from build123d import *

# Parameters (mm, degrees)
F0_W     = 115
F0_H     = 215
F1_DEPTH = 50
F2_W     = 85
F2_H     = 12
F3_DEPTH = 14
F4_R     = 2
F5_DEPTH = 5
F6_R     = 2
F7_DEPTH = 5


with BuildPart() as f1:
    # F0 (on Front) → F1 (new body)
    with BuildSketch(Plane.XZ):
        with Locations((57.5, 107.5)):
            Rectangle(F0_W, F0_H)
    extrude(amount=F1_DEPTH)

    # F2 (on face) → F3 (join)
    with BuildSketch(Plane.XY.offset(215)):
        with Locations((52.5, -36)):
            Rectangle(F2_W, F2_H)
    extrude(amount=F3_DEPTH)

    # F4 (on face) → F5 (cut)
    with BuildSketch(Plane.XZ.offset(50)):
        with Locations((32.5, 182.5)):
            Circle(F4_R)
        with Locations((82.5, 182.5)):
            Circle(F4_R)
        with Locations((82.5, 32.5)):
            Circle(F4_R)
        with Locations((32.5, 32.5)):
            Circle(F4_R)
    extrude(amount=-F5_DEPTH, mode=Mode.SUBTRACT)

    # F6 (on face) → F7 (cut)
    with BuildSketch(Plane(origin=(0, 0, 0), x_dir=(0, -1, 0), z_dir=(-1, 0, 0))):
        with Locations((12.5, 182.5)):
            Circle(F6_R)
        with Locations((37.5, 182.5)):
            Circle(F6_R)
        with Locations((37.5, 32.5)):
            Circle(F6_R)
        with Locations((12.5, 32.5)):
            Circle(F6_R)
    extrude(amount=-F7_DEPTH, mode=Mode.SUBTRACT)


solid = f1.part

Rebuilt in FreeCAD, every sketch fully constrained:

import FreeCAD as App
import Part
import Sketcher


def add_polygon(sketch, points):
    """Adds a closed chain of lines whose ends are joined by coincident constraints."""
    first, n = sketch.GeometryCount, len(points)
    for a, b in zip(points, points[1:] + points[:1]):
        sketch.addGeometry(Part.LineSegment(App.Vector(*a, 0), App.Vector(*b, 0)), False)
    for i in range(n):
        sketch.addConstraint(Sketcher.Constraint("Coincident", first + i, 2, first + (i + 1) % n, 1))

doc = App.newDocument("Part")
params = doc.addObject("Spreadsheet::Sheet", "Params")
for row, (alias, value) in enumerate([
    ("sketch1_width", "115 mm"),
    ("sketch1_height", "215 mm"),
    ("pad1_length", "50 mm"),
    ("sketch2_width", "85 mm"),
    ("sketch2_height", "12 mm"),
    ("pad2_length", "14 mm"),
    ("sketch3_diameter", "4 mm"),
    ("pocket1_length", "5 mm"),
    ("sketch4_diameter", "4 mm"),
    ("pocket2_length", "5 mm"),
], start=1):
    params.set(f"A{row}", alias)
    params.set(f"B{row}", "=" + value)
    params.setAlias(f"B{row}", alias)

body = doc.addObject("PartDesign::Body", "Body")

# Sketch on XZ plane
sketch1 = body.newObject("Sketcher::SketchObject", "Sketch")
sketch1.AttachmentSupport = (doc.getObject("XZ_Plane"), [""])
sketch1.MapMode = "FlatFace"
add_polygon(sketch1, [(0, 215), (0, 0), (115, 0), (115, 215)])  # lines 0-3
sketch1.addConstraint([
    Sketcher.Constraint("Vertical", 0),
    Sketcher.Constraint("Horizontal", 1),
    Sketcher.Constraint("Vertical", 2),
    Sketcher.Constraint("Horizontal", 3),
    Sketcher.Constraint("Coincident", 0, 2, -1, 1),
    Sketcher.Constraint("DistanceX", 1, 1, 1, 2, 115.0),
    Sketcher.Constraint("DistanceY", 0, 2, 0, 1, 215.0),
])
sketch1.setExpression("Constraints[9]", "Params.sketch1_width")
sketch1.setExpression("Constraints[10]", "Params.sketch1_height")
pad1 = body.newObject("PartDesign::Pad", "Pad")
pad1.Profile = sketch1
pad1.setExpression("Length", "Params.pad1_length")

# Sketch on XY plane
sketch2 = body.newObject("Sketcher::SketchObject", "Sketch001")
sketch2.AttachmentSupport = (doc.getObject("XY_Plane"), [""])
sketch2.MapMode = "FlatFace"
sketch2.AttachmentOffset = App.Placement(App.Vector(0, 0, 215), App.Rotation())
add_polygon(sketch2, [(10, -30), (10, -42), (95, -42), (95, -30)])  # lines 0-3
sketch2.addConstraint([
    Sketcher.Constraint("Vertical", 0),
    Sketcher.Constraint("Horizontal", 1),
    Sketcher.Constraint("Vertical", 2),
    Sketcher.Constraint("Horizontal", 3),
    Sketcher.Constraint("DistanceX", 1, 1, 1, 2, 85.0),
    Sketcher.Constraint("DistanceY", 0, 2, 0, 1, 12.0),
    Sketcher.Constraint("DistanceX", -1, 1, 0, 2, 10.0),
    Sketcher.Constraint("DistanceY", 0, 2, -1, 1, 42.0),
])
sketch2.setExpression("Constraints[8]", "Params.sketch2_width")
sketch2.setExpression("Constraints[9]", "Params.sketch2_height")
pad2 = body.newObject("PartDesign::Pad", "Pad001")
pad2.Profile = sketch2
pad2.setExpression("Length", "Params.pad2_length")

# Sketch on XZ plane
sketch3 = body.newObject("Sketcher::SketchObject", "Sketch002")
sketch3.AttachmentSupport = (doc.getObject("XZ_Plane"), [""])
sketch3.MapMode = "FlatFace"
sketch3.AttachmentOffset = App.Placement(App.Vector(0, 0, 50), App.Rotation())
sketch3.addGeometry([
    Part.Circle(App.Vector(32.5, 182.5, 0), App.Vector(0, 0, 1), 2),
    Part.Circle(App.Vector(82.5, 182.5, 0), App.Vector(0, 0, 1), 2),
    Part.Circle(App.Vector(82.5, 32.5, 0), App.Vector(0, 0, 1), 2),
    Part.Circle(App.Vector(32.5, 32.5, 0), App.Vector(0, 0, 1), 2),
], False)
sketch3.addConstraint([
    Sketcher.Constraint("Equal", 0, 1),
    Sketcher.Constraint("Equal", 1, 2),
    Sketcher.Constraint("Equal", 2, 3),
    Sketcher.Constraint("Horizontal", 0, 3, 1, 3),
    Sketcher.Constraint("Horizontal", 2, 3, 3, 3),
    Sketcher.Constraint("Vertical", 1, 3, 2, 3),
    Sketcher.Constraint("Vertical", 0, 3, 3, 3),
    Sketcher.Constraint("Diameter", 0, 4.0),
    Sketcher.Constraint("DistanceX", 0, 3, 1, 3, 50.0),
    Sketcher.Constraint("DistanceY", 2, 3, 1, 3, 150.0),
    Sketcher.Constraint("DistanceX", -1, 1, 0, 3, 32.5),
    Sketcher.Constraint("DistanceY", -1, 1, 0, 3, 182.5),
])
sketch3.setExpression("Constraints[7]", "Params.sketch3_diameter")
pocket1 = body.newObject("PartDesign::Pocket", "Pocket")
pocket1.Profile = sketch3
pocket1.setExpression("Length", "Params.pocket1_length")

# Sketch on YZ plane
sketch4 = body.newObject("Sketcher::SketchObject", "Sketch003")
sketch4.AttachmentSupport = (doc.getObject("YZ_Plane"), [""])
sketch4.MapMode = "FlatFace"
sketch4.addGeometry([
    Part.Circle(App.Vector(-12.5, 182.5, 0), App.Vector(0, 0, 1), 2),
    Part.Circle(App.Vector(-37.5, 182.5, 0), App.Vector(0, 0, 1), 2),
    Part.Circle(App.Vector(-37.5, 32.5, 0), App.Vector(0, 0, 1), 2),
    Part.Circle(App.Vector(-12.5, 32.5, 0), App.Vector(0, 0, 1), 2),
], False)
sketch4.addConstraint([
    Sketcher.Constraint("Equal", 0, 1),
    Sketcher.Constraint("Equal", 1, 2),
    Sketcher.Constraint("Equal", 2, 3),
    Sketcher.Constraint("Horizontal", 0, 3, 1, 3),
    Sketcher.Constraint("Horizontal", 2, 3, 3, 3),
    Sketcher.Constraint("Vertical", 1, 3, 2, 3),
    Sketcher.Constraint("Vertical", 0, 3, 3, 3),
    Sketcher.Constraint("Diameter", 0, 4.0),
    Sketcher.Constraint("DistanceX", 1, 3, 0, 3, 25.0),
    Sketcher.Constraint("DistanceY", 2, 3, 1, 3, 150.0),
    Sketcher.Constraint("DistanceX", 0, 3, -1, 1, 12.5),
    Sketcher.Constraint("DistanceY", -1, 1, 0, 3, 182.5),
])
sketch4.setExpression("Constraints[7]", "Params.sketch4_diameter")
pocket2 = body.newObject("PartDesign::Pocket", "Pocket001")
pocket2.Profile = sketch4
pocket2.setExpression("Length", "Params.pocket2_length")
pocket2.Reversed = True

doc.recompute()
